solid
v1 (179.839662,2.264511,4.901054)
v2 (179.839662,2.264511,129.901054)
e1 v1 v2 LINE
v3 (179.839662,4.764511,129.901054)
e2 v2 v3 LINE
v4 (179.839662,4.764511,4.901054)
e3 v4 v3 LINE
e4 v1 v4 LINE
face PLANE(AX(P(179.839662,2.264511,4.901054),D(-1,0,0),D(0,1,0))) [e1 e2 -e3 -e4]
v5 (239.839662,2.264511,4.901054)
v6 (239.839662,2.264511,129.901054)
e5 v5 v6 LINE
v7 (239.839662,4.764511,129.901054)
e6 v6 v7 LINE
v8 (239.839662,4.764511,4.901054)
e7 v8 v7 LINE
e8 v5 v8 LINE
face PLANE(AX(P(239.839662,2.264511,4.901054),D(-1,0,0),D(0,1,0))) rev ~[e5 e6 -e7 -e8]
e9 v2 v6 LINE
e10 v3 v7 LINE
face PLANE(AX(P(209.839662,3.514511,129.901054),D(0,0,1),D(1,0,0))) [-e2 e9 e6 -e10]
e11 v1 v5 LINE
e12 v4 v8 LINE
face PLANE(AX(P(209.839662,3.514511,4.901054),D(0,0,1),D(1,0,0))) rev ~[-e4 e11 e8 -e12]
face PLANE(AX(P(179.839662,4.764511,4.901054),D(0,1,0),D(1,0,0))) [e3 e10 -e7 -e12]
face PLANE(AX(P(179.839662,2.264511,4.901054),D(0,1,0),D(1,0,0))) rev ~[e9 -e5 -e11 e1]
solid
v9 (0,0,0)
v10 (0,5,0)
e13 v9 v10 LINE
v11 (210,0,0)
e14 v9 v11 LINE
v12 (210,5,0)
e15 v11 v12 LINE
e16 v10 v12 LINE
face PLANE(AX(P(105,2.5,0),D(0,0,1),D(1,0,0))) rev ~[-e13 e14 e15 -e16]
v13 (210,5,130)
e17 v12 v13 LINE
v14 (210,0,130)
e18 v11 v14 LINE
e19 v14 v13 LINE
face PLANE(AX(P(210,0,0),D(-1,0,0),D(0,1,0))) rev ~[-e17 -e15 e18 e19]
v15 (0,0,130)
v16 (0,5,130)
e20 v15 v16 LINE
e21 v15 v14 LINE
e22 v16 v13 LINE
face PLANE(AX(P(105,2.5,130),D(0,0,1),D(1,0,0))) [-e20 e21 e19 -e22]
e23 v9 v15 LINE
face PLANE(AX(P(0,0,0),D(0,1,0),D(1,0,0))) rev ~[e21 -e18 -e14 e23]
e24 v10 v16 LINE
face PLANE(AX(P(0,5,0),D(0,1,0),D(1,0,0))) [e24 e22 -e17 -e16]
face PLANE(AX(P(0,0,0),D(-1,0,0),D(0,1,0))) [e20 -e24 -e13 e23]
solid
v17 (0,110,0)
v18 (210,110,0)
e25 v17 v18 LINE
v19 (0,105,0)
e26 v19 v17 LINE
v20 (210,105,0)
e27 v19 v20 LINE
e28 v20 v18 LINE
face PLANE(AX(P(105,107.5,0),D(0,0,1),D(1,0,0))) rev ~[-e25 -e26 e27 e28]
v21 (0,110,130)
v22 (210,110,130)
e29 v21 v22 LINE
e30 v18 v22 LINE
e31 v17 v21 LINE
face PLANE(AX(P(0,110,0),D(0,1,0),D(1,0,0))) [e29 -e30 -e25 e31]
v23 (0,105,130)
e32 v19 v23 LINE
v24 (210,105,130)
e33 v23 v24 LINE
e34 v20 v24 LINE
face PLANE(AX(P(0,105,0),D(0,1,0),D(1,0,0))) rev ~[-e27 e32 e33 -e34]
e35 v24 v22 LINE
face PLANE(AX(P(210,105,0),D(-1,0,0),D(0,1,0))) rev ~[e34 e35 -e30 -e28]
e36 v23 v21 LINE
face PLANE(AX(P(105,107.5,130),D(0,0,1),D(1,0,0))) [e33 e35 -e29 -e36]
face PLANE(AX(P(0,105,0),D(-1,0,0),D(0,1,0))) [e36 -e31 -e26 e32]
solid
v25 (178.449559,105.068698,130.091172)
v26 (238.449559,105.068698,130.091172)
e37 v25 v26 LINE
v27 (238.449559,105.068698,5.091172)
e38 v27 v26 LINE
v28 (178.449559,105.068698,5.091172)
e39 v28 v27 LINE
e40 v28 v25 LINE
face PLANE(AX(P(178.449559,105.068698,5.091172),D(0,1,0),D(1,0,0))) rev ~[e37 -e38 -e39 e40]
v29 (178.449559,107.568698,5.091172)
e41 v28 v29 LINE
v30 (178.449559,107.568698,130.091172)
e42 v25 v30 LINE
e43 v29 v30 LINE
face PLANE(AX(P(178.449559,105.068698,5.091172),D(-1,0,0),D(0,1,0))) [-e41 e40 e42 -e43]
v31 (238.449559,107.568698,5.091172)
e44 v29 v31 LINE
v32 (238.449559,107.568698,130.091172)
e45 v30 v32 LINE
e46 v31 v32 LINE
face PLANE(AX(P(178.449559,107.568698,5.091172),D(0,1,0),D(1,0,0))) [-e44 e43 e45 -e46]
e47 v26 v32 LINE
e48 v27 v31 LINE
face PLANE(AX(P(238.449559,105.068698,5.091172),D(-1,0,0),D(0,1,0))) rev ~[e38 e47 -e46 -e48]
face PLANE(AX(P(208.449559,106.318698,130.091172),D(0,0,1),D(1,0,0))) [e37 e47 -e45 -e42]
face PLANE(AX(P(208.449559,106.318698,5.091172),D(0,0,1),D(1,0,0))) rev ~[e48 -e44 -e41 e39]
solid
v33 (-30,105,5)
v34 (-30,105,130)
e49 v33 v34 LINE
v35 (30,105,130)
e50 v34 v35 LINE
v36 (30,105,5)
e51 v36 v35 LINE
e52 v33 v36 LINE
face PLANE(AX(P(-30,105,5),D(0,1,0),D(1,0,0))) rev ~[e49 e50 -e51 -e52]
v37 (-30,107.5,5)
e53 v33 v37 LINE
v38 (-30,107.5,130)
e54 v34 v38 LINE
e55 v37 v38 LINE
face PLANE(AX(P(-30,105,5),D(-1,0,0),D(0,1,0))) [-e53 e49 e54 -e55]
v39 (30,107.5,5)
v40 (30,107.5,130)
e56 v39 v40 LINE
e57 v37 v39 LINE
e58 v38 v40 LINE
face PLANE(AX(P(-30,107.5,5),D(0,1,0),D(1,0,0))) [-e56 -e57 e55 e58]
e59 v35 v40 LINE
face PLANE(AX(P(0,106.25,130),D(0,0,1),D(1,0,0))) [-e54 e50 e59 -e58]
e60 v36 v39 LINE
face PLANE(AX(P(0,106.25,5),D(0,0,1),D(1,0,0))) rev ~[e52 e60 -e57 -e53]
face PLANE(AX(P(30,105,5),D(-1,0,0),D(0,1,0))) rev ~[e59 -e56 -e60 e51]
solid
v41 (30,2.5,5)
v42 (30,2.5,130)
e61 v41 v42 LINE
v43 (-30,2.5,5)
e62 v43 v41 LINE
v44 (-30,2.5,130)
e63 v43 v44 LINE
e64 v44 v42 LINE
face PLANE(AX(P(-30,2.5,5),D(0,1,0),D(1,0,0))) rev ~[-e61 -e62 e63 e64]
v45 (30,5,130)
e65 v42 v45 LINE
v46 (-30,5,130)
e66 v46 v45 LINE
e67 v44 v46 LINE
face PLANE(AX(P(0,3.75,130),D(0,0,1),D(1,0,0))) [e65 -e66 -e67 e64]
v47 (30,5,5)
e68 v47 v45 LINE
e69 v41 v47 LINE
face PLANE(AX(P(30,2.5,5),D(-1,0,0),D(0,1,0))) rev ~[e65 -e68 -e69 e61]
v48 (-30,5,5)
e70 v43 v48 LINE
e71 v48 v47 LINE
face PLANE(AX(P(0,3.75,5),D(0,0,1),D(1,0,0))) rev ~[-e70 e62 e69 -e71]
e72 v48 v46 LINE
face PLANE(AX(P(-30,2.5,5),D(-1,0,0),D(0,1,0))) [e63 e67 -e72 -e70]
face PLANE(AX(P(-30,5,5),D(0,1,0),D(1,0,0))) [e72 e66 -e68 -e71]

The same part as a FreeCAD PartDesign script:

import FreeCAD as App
import Part
import Sketcher
from FreeCAD import Vector
Q = App.Units.Quantity


def add_polygon(sketch, points):
    """Adds a closed chain of lines whose ends are joined by coincident constraints."""
    first, n = sketch.GeometryCount, len(points)
    for a, b in zip(points, points[1:] + points[:1]):
        sketch.addGeometry(Part.LineSegment(App.Vector(*a, 0), App.Vector(*b, 0)), False)
    for i in range(n):
        sketch.addConstraint(Sketcher.Constraint("Coincident", first + i, 2, first + (i + 1) % n, 1))

doc = App.newDocument("Part")
params = doc.addObject("Spreadsheet::Sheet", "Params")
for row, (alias, value) in enumerate([
    ("sketch1_width", "60 mm"),
    ("sketch1_height", "2.5 mm"),
    ("pad1_length", "125 mm"),
    ("sketch2_width", "210 mm"),
    ("sketch2_height", "5 mm"),
    ("pad2_length", "130 mm"),
    ("sketch3_width", "210 mm"),
    ("sketch3_height", "5 mm"),
    ("pad3_length", "130 mm"),
    ("sketch4_width", "60 mm"),
    ("sketch4_height", "2.5 mm"),
    ("pad4_length", "125 mm"),
    ("sketch5_width", "60 mm"),
    ("sketch5_height", "2.5 mm"),
    ("pad5_length", "125 mm"),
    ("sketch6_width", "60 mm"),
    ("sketch6_height", "2.5 mm"),
    ("pad6_length", "125 mm"),
], start=1):
    params.set(f"A{row}", alias)
    params.set(f"B{row}", "=" + value)
    params.setAlias(f"B{row}", alias)

body = doc.addObject("PartDesign::Body", "Body")

sketch1 = body.newObject("Sketcher::SketchObject", "Sketch")
sketch1.AttachmentSupport = (doc.getObject("XY_Plane"), [""])
sketch1.MapMode = "FlatFace"
sketch1.AttachmentOffset = App.Placement(Vector(0, 0, 5), App.Rotation())
add_polygon(sketch1, [(-30, 5), (-30, 2.5), (30, 2.5), (30, 5)])
sketch1.addConstraint([
    Sketcher.Constraint("Vertical", 0),
    Sketcher.Constraint("Horizontal", 1),
    Sketcher.Constraint("Vertical", 2),
    Sketcher.Constraint("Horizontal", 3),
    Sketcher.Constraint("DistanceX", 1, 1, 1, 2, Q("60 mm")),
    Sketcher.Constraint("DistanceY", 0, 2, 0, 1, Q("2.5 mm")),
    Sketcher.Constraint("DistanceX", 0, 2, -1, 1, Q("30 mm")),
    Sketcher.Constraint("DistanceY", -1, 1, 2, 2, Q("5 mm")),
])
sketch1.setExpression("Constraints[8]", "Params.sketch1_width")
sketch1.setExpression("Constraints[9]", "Params.sketch1_height")
pad1 = body.newObject("PartDesign::Pad", "Pad")
pad1.Profile = sketch1
pad1.setExpression("Length", "Params.pad1_length")
body2 = doc.addObject("PartDesign::Body", "Body001")

sketch2 = body2.newObject("Sketcher::SketchObject", "Sketch001")
sketch2.AttachmentSupport = (doc.getObject("XY_Plane001"), [""])
sketch2.MapMode = "FlatFace"
add_polygon(sketch2, [(0, 110), (0, 105), (210, 105), (210, 110)])
sketch2.addConstraint([
    Sketcher.Constraint("Vertical", 0),
    Sketcher.Constraint("Horizontal", 1),
    Sketcher.Constraint("Vertical", 2),
    Sketcher.Constraint("Horizontal", 3),
    Sketcher.Constraint("PointOnObject", 0, 2, -2),
    Sketcher.Constraint("DistanceX", 1, 1, 1, 2, Q("210 mm")),
    Sketcher.Constraint("DistanceY", 0, 2, 0, 1, Q("5 mm")),
    Sketcher.Constraint("DistanceY", -1, 1, 0, 2, Q("105 mm")),
])
sketch2.setExpression("Constraints[9]", "Params.sketch2_width")
sketch2.setExpression("Constraints[10]", "Params.sketch2_height")
pad2 = body2.newObject("PartDesign::Pad", "Pad001")
pad2.Profile = sketch2
pad2.setExpression("Length", "Params.pad2_length")
body3 = doc.addObject("PartDesign::Body", "Body002")

sketch3 = body3.newObject("Sketcher::SketchObject", "Sketch002")
sketch3.AttachmentSupport = (doc.getObject("XY_Plane002"), [""])
sketch3.MapMode = "FlatFace"
add_polygon(sketch3, [(0, 5), (0, 0), (210, 0), (210, 5)])
sketch3.addConstraint([
    Sketcher.Constraint("Vertical", 0),
    Sketcher.Constraint("Horizontal", 1),
    Sketcher.Constraint("Vertical", 2),
    Sketcher.Constraint("Horizontal", 3),
    Sketcher.Constraint("Coincident", 0, 2, -1, 1),
    Sketcher.Constraint("DistanceX", 1, 1, 1, 2, Q("210 mm")),
    Sketcher.Constraint("DistanceY", 0, 2, 0, 1, Q("5 mm")),
])
sketch3.setExpression("Constraints[9]", "Params.sketch3_width")
sketch3.setExpression("Constraints[10]", "Params.sketch3_height")
pad3 = body3.newObject("PartDesign::Pad", "Pad002")
pad3.Profile = sketch3
pad3.setExpression("Length", "Params.pad3_length")
body4 = doc.addObject("PartDesign::Body", "Body003")

sketch4 = body4.newObject("Sketcher::SketchObject", "Sketch003")
sketch4.AttachmentSupport = (doc.getObject("XY_Plane003"), [""])
sketch4.MapMode = "FlatFace"
sketch4.AttachmentOffset = App.Placement(Vector(0, 0, 5.091172), App.Rotation())
add_polygon(sketch4, [(178.4, 107.6), (178.4, 105.1), (238.4, 105.1), (238.4, 107.6)])
sketch4.addConstraint([
    Sketcher.Constraint("Vertical", 0),
    Sketcher.Constraint("Horizontal", 1),
    Sketcher.Constraint("Vertical", 2),
    Sketcher.Constraint("Horizontal", 3),
    Sketcher.Constraint("DistanceX", 1, 1, 1, 2, Q("60 mm")),
    Sketcher.Constraint("DistanceY", 0, 2, 0, 1, Q("2.5 mm")),
    Sketcher.Constraint("DistanceX", -1, 1, 0, 2, Q("178.449559 mm")),
    Sketcher.Constraint("DistanceY", -1, 1, 0, 2, Q("105.068698 mm")),
])
sketch4.setExpression("Constraints[8]", "Params.sketch4_width")
sketch4.setExpression("Constraints[9]", "Params.sketch4_height")
pad4 = body4.newObject("PartDesign::Pad", "Pad003")
pad4.Profile = sketch4
pad4.setExpression("Length", "Params.pad4_length")
body5 = doc.addObject("PartDesign::Body", "Body004")

sketch5 = body5.newObject("Sketcher::SketchObject", "Sketch004")
sketch5.AttachmentSupport = (doc.getObject("XY_Plane004"), [""])
sketch5.MapMode = "FlatFace"
sketch5.AttachmentOffset = App.Placement(Vector(0, 0, 5), App.Rotation())
add_polygon(sketch5, [(-30, 107.5), (-30, 105), (30, 105), (30, 107.5)])
sketch5.addConstraint([
    Sketcher.Constraint("Vertical", 0),
    Sketcher.Constraint("Horizontal", 1),
    Sketcher.Constraint("Vertical", 2),
    Sketcher.Constraint("Horizontal", 3),
    Sketcher.Constraint("DistanceX", 1, 1, 1, 2, Q("60 mm")),
    Sketcher.Constraint("DistanceY", 0, 2, 0, 1, Q("2.5 mm")),
    Sketcher.Constraint("DistanceX", 0, 2, -1, 1, Q("30 mm")),
    Sketcher.Constraint("DistanceY", -1, 1, 0, 2, Q("105 mm")),
])
sketch5.setExpression("Constraints[8]", "Params.sketch5_width")
sketch5.setExpression("Constraints[9]", "Params.sketch5_height")
pad5 = body5.newObject("PartDesign::Pad", "Pad004")
pad5.Profile = sketch5
pad5.setExpression("Length", "Params.pad5_length")
body6 = doc.addObject("PartDesign::Body", "Body005")

sketch6 = body6.newObject("Sketcher::SketchObject", "Sketch005")
sketch6.AttachmentSupport = (doc.getObject("XY_Plane005"), [""])
sketch6.MapMode = "FlatFace"
sketch6.AttachmentOffset = App.Placement(Vector(0, 0, 4.901054), App.Rotation())
add_polygon(sketch6, [(179.8, 4.8), (179.8, 2.3), (239.8, 2.3), (239.8, 4.8)])
sketch6.addConstraint([
    Sketcher.Constraint("Vertical", 0),
    Sketcher.Constraint("Horizontal", 1),
    Sketcher.Constraint("Vertical", 2),
    Sketcher.Constraint("Horizontal", 3),
    Sketcher.Constraint("DistanceX", 1, 1, 1, 2, Q("60 mm")),
    Sketcher.Constraint("DistanceY", 0, 2, 0, 1, Q("2.5 mm")),
    Sketcher.Constraint("DistanceX", -1, 1, 0, 2, Q("179.839662 mm")),
    Sketcher.Constraint("DistanceY", -1, 1, 0, 2, Q("2.264511 mm")),
])
sketch6.setExpression("Constraints[8]", "Params.sketch6_width")
sketch6.setExpression("Constraints[9]", "Params.sketch6_height")
pad6 = body6.newObject("PartDesign::Pad", "Pad005")
pad6.Profile = sketch6
pad6.setExpression("Length", "Params.pad6_length")

doc.recompute()
